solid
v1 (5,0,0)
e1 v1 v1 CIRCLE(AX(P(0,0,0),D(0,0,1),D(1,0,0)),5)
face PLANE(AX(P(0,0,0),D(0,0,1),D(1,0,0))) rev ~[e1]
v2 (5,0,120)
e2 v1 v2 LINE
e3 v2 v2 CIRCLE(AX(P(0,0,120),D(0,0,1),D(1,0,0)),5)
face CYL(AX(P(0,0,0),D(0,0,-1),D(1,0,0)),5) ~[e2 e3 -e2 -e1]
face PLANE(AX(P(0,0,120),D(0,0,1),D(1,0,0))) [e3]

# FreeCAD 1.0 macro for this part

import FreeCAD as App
import Part
import Sketcher
from FreeCAD import Vector

doc = App.newDocument("Part")
body = doc.addObject("PartDesign::Body", "Body")

sketch1 = body.newObject("Sketcher::SketchObject", "Sketch")
sketch1.AttachmentSupport = (doc.getObject("XY_Plane"), [""])
sketch1.MapMode = "FlatFace"
sketch1.addGeometry(Part.Circle(Vector(0, 0, 0), Vector(0, 0, 1), 5), False)
sketch1.addConstraint(Sketcher.Constraint("Coincident", 0, 3, -1, 1))
sketch1.addConstraint(Sketcher.Constraint("Diameter", 0, 10.0))
pad1 = body.newObject("PartDesign::Pad", "Pad")
pad1.Profile = sketch1
pad1.Length = 120

doc.recompute()
